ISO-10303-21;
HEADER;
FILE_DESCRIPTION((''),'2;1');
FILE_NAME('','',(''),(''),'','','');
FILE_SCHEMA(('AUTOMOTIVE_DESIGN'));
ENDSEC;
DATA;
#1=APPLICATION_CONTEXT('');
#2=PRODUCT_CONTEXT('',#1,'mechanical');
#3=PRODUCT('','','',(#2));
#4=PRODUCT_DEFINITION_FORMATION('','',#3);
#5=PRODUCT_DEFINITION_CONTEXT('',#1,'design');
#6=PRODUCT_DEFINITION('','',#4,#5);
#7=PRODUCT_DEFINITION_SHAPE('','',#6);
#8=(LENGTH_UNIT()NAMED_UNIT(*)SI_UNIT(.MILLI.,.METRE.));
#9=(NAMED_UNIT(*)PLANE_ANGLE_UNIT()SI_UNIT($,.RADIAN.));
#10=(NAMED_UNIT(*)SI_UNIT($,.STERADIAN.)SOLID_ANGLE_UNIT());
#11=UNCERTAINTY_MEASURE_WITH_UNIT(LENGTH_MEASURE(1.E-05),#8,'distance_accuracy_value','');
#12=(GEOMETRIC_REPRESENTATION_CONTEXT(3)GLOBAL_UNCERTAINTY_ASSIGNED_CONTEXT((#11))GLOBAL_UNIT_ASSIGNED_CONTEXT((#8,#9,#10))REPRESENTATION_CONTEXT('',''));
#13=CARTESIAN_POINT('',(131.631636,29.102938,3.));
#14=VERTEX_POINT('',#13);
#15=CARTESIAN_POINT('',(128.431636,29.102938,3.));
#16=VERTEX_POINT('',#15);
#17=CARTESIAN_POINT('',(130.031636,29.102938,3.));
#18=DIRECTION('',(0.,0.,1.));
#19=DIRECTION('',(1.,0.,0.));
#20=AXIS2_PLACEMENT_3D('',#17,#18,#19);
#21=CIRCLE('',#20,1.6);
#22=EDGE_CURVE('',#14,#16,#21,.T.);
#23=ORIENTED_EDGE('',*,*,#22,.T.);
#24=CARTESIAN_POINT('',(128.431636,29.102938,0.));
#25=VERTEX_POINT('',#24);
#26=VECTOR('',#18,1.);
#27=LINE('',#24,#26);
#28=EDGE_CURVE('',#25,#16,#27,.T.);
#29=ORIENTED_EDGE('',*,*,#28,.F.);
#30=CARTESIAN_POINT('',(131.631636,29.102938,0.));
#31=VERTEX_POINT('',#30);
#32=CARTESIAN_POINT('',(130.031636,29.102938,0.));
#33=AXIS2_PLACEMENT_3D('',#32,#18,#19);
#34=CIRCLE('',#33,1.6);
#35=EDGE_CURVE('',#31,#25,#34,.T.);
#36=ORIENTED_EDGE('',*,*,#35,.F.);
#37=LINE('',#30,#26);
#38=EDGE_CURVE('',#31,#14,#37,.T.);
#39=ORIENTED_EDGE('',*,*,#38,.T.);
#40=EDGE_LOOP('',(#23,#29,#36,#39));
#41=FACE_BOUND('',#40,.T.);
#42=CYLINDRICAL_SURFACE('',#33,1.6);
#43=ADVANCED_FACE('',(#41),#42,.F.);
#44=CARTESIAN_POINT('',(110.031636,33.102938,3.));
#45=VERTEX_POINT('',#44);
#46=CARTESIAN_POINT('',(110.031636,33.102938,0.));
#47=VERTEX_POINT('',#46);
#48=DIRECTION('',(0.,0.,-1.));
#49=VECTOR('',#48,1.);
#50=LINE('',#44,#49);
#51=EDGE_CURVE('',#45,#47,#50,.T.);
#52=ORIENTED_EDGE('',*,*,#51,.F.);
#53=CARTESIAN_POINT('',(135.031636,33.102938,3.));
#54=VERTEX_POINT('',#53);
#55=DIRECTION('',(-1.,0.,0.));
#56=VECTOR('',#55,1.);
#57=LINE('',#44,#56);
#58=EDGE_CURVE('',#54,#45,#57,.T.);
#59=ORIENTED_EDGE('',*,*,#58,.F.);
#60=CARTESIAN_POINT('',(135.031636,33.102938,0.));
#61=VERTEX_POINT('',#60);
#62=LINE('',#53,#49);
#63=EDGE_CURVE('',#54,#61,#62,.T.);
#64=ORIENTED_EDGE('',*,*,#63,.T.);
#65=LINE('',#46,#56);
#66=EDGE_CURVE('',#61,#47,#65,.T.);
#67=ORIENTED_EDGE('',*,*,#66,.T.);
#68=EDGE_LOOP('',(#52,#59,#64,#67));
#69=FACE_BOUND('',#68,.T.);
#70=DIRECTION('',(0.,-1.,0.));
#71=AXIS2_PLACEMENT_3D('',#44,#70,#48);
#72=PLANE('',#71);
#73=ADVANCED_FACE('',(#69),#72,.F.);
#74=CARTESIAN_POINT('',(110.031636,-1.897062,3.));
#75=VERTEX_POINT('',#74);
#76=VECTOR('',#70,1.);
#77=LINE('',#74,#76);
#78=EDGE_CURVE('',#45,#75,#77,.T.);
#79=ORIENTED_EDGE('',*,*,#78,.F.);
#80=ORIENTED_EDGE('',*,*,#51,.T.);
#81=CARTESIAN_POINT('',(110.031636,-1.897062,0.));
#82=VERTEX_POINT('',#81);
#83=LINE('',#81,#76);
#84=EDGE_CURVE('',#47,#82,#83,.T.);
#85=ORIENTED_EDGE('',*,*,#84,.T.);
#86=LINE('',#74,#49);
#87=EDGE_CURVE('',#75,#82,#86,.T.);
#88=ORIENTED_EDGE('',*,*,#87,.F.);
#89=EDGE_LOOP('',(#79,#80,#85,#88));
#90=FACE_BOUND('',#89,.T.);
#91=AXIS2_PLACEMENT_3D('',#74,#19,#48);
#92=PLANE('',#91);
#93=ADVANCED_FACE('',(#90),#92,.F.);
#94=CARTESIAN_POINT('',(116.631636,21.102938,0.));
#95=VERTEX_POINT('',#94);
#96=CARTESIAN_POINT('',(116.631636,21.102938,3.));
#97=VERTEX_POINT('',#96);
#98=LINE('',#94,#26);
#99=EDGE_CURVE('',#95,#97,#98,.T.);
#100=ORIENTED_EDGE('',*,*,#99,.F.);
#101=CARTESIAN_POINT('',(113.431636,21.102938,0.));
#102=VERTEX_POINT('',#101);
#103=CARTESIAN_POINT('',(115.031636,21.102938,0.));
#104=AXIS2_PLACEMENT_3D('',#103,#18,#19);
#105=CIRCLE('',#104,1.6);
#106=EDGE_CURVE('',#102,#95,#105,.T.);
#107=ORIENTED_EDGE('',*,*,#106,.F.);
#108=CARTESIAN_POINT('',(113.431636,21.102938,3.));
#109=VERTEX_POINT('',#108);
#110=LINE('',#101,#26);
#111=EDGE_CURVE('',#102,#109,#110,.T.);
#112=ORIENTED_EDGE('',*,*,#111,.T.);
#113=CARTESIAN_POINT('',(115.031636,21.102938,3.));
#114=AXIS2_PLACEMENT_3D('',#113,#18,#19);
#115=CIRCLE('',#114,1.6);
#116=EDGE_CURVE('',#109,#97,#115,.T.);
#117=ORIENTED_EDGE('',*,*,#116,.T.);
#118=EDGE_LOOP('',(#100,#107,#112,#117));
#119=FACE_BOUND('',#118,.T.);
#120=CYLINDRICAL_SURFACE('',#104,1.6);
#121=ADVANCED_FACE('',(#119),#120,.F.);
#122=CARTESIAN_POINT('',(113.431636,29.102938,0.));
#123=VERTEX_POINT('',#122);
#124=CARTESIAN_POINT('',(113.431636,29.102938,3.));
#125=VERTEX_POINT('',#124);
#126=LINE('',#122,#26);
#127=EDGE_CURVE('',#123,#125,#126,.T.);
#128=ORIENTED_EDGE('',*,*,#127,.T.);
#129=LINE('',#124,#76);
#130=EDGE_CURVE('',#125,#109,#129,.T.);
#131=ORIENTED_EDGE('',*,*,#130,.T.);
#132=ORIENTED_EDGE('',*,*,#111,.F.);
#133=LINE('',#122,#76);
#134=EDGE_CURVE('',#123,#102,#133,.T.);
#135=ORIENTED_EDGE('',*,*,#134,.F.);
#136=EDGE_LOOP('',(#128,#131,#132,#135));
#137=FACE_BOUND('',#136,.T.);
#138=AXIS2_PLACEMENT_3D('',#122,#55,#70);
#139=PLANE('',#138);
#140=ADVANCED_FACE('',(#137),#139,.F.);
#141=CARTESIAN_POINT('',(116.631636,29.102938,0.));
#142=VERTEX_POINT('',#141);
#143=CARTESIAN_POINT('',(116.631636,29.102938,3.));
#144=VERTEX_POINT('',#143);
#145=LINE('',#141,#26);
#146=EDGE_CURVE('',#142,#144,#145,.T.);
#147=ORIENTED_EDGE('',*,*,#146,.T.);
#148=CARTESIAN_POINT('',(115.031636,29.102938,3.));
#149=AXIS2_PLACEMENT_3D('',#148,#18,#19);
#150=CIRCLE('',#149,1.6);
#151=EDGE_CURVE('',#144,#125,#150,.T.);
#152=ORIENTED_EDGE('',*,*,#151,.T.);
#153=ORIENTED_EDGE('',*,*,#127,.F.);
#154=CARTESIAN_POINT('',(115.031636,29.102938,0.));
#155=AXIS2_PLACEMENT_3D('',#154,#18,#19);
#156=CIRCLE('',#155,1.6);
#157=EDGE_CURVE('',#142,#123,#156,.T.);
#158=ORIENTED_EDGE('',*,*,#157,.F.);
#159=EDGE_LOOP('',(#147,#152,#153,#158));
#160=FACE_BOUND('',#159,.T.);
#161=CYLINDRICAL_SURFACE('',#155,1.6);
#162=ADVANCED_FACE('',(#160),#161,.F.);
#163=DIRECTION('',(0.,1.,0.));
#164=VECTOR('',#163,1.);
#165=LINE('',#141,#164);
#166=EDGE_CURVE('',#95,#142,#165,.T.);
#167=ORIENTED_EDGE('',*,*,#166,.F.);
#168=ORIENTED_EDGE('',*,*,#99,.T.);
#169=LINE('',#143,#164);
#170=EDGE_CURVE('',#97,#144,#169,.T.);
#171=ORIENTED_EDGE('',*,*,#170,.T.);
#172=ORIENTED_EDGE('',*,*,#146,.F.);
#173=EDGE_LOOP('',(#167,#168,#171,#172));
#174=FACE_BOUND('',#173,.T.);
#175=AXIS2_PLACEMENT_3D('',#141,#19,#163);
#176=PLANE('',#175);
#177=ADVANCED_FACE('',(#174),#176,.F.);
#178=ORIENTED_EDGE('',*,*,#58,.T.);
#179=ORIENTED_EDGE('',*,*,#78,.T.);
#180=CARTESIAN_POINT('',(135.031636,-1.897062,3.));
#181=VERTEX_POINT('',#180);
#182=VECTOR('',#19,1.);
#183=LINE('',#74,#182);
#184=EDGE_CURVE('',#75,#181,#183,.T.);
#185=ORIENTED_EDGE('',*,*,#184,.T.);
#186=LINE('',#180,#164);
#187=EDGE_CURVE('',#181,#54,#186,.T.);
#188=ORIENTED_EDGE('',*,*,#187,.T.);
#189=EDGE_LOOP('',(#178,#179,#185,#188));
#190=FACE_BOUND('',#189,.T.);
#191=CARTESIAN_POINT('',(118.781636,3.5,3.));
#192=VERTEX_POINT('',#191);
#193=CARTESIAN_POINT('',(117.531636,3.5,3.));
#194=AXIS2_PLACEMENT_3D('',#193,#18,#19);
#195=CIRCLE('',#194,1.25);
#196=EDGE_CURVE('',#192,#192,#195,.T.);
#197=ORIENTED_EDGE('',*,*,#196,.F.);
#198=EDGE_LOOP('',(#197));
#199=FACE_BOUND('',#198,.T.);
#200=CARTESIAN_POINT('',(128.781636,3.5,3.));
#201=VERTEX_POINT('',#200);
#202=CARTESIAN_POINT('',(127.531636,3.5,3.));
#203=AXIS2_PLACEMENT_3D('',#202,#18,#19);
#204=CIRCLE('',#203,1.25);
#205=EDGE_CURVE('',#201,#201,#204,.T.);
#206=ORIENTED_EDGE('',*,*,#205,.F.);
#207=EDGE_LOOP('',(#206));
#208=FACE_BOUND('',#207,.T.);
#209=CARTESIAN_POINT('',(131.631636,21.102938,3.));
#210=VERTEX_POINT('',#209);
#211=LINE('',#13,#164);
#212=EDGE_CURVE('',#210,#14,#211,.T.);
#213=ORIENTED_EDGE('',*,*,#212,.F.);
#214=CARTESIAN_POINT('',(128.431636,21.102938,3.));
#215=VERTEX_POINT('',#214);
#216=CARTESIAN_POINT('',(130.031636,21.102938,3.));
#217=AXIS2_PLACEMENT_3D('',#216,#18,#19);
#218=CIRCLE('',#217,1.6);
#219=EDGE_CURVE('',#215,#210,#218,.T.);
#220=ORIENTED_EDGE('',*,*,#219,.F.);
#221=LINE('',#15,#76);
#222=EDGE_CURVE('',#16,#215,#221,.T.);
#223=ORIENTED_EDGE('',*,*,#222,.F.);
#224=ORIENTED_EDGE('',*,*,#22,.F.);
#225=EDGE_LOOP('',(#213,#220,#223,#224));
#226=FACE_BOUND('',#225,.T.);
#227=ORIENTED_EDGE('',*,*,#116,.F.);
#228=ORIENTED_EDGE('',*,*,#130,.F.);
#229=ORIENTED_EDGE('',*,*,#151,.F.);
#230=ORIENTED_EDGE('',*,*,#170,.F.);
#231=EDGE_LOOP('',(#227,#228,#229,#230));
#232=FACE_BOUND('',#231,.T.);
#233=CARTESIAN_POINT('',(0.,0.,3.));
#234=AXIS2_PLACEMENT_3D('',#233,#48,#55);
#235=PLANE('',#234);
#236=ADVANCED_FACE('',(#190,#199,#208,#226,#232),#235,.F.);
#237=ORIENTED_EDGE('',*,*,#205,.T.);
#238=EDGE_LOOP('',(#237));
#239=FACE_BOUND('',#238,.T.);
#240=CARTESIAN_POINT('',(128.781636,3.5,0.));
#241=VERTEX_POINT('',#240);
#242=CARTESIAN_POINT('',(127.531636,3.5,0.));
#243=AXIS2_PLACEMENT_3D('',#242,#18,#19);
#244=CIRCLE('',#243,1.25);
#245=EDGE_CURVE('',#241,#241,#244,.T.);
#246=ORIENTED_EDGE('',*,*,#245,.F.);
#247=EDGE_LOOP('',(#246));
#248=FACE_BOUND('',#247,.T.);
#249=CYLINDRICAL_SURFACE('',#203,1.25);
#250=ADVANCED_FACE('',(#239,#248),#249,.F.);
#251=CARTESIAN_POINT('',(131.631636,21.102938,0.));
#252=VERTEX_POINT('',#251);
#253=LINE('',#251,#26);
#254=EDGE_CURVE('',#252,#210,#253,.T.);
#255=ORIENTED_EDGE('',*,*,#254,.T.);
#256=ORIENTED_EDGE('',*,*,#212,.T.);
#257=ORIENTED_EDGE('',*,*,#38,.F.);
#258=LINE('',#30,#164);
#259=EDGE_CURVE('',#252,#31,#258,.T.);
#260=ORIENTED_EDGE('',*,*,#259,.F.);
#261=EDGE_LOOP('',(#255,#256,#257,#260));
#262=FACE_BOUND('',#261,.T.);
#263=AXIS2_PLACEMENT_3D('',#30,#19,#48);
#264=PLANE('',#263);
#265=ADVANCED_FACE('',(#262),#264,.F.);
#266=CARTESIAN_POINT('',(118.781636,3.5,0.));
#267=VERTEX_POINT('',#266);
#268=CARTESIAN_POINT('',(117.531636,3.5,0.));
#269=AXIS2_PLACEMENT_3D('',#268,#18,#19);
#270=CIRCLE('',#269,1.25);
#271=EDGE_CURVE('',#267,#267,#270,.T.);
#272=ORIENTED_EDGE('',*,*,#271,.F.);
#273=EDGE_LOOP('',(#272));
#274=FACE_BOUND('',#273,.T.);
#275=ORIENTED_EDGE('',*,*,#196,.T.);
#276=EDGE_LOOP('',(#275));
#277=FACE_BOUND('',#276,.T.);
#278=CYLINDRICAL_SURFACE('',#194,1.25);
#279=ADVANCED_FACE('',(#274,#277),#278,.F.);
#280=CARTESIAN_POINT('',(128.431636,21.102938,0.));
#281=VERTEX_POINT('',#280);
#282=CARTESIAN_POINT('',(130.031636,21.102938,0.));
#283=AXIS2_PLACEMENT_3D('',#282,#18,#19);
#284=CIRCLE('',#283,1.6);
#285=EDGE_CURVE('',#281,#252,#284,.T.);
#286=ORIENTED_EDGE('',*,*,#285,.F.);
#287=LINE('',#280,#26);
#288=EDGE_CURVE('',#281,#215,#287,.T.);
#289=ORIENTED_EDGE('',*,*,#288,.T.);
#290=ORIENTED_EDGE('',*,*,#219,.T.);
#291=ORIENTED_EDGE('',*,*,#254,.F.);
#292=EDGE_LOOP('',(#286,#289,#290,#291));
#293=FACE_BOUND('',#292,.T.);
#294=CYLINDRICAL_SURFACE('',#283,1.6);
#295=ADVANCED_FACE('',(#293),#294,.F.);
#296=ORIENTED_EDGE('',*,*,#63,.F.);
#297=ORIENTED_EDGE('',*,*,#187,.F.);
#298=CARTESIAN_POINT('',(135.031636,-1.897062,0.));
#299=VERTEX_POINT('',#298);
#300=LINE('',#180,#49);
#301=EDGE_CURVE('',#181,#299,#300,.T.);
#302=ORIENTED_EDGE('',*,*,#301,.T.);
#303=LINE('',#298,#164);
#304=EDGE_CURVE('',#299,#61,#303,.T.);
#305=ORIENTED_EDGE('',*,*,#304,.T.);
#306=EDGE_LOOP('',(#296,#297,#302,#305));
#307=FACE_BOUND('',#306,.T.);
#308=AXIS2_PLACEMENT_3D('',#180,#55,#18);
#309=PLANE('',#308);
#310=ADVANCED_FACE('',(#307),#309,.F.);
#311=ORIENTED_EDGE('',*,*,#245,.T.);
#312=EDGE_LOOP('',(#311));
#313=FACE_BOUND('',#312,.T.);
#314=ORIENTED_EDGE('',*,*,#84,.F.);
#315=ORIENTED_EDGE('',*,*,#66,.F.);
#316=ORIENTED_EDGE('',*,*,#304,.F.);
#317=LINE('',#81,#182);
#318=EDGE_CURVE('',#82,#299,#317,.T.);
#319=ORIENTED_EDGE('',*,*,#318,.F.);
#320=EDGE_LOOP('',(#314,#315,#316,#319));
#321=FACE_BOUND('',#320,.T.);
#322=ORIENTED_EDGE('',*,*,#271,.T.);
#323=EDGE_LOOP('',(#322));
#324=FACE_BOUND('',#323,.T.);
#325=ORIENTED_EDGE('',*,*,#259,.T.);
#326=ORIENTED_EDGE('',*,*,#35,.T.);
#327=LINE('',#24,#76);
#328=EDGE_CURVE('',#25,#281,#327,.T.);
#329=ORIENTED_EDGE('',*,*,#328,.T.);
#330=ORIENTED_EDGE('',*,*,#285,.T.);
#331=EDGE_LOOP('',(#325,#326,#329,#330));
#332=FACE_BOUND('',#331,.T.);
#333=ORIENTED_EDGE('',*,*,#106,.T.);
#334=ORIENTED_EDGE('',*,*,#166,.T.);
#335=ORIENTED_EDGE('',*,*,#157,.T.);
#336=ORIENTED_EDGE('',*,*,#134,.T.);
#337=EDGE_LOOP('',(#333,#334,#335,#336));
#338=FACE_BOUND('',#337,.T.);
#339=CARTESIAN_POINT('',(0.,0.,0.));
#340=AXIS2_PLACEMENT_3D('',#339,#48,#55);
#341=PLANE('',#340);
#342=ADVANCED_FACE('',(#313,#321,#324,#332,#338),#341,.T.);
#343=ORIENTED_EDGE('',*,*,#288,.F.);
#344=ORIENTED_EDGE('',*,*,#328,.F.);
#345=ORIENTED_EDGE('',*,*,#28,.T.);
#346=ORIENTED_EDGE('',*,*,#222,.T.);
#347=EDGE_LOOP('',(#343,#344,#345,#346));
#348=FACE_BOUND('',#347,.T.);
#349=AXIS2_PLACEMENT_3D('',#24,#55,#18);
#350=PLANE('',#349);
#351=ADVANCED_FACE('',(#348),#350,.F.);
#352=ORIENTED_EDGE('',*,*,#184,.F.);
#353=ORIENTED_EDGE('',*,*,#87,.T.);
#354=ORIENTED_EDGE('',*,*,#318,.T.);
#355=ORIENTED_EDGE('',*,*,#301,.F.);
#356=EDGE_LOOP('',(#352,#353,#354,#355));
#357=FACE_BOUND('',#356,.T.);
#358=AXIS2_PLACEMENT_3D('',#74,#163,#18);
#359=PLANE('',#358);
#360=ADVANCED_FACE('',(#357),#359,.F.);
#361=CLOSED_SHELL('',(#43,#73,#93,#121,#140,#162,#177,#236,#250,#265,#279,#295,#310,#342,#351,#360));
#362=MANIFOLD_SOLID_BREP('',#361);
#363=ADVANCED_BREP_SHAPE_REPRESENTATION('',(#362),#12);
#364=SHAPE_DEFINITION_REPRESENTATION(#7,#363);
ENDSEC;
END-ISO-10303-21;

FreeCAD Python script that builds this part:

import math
import FreeCAD as App
import Part
import Sketcher

V = App.Vector

doc = App.newDocument("Part")
body = doc.addObject("PartDesign::Body", "Body")

# Sketch on XY plane
sketch1 = body.newObject("Sketcher::SketchObject", "Sketch")
sketch1.AttachmentSupport = (doc.getObject("XY_Plane"), [""])
sketch1.MapMode = "FlatFace"
sketch1.addGeometry(Part.LineSegment(V(110, 33, 0), V(110, -2, 0)), False)
sketch1.addGeometry(Part.LineSegment(V(110, -2, 0), V(135, -2, 0)), False)
sketch1.addGeometry(Part.LineSegment(V(135, -2, 0), V(135, 33, 0)), False)
sketch1.addGeometry(Part.LineSegment(V(135, 33, 0), V(110, 33, 0)), False)
sketch1.addConstraint(Sketcher.Constraint("Coincident", 0, 2, 1, 1))
sketch1.addConstraint(Sketcher.Constraint("Coincident", 1, 2, 2, 1))
sketch1.addConstraint(Sketcher.Constraint("Coincident", 2, 2, 3, 1))
sketch1.addConstraint(Sketcher.Constraint("Coincident", 3, 2, 0, 1))
sketch1.addConstraint(Sketcher.Constraint("Vertical", 0))
sketch1.addConstraint(Sketcher.Constraint("Horizontal", 1))
sketch1.addConstraint(Sketcher.Constraint("Vertical", 2))
sketch1.addConstraint(Sketcher.Constraint("Horizontal", 3))
sketch1.addConstraint(Sketcher.Constraint("DistanceX", 1, 1, 1, 2, 25.0))
sketch1.addConstraint(Sketcher.Constraint("DistanceY", 0, 2, 0, 1, 35.0))
sketch1.addConstraint(Sketcher.Constraint("DistanceY", 0, 2, -1, 1, 1.897062))
sketch1.addConstraint(Sketcher.Constraint("DistanceX", -1, 1, 0, 2, 110.031636))
pad1 = body.newObject("PartDesign::Pad", "Pad")
pad1.Profile = sketch1
pad1.Length = 3

# Sketch on XY plane
sketch2 = body.newObject("Sketcher::SketchObject", "Sketch001")
sketch2.AttachmentSupport = (doc.getObject("XY_Plane"), [""])
sketch2.MapMode = "FlatFace"
sketch2.AttachmentOffset = App.Placement(V(0, 0, 3), App.Rotation())
sketch2.addGeometry(Part.Circle(V(117.5, 3.5, 0), V(0, 0, 1), 1.2), False)
sketch2.addGeometry(Part.Circle(V(127.5, 3.5, 0), V(0, 0, 1), 1.2), False)
sketch2.addConstraint(Sketcher.Constraint("Equal", 0, 1))
sketch2.addConstraint(Sketcher.Constraint("Horizontal", 0, 3, 1, 3))
sketch2.addConstraint(Sketcher.Constraint("Diameter", 0, 2.5))
sketch2.addConstraint(Sketcher.Constraint("DistanceX", 0, 3, 1, 3, 10.0))
sketch2.addConstraint(Sketcher.Constraint("DistanceY", -1, 1, 0, 3, 3.5))
sketch2.addConstraint(Sketcher.Constraint("DistanceX", -1, 1, 0, 3, 117.531636))
doc.recompute()
hole = body.newObject("PartDesign::Hole", "Hole")
hole.Profile = sketch2
hole.ThreadType = "None"
hole.Diameter = 2.5
hole.DepthType = "ThroughAll"

# Sketch on XY plane
sketch3 = body.newObject("Sketcher::SketchObject", "Sketch002")
sketch3.AttachmentSupport = (doc.getObject("XY_Plane"), [""])
sketch3.MapMode = "FlatFace"
sketch3.AttachmentOffset = App.Placement(V(0, 0, 3), App.Rotation())
sketch3.addGeometry(Part.LineSegment(V(116.6, 21.1, 0), V(116.6, 29.1, 0)), False)
sketch3.addGeometry(Part.ArcOfCircle(Part.Circle(V(115, 29.1, 0), V(0, 0, 1), 1.6), math.radians(0), math.radians(180)), False)
sketch3.addGeometry(Part.LineSegment(V(113.4, 29.1, 0), V(113.4, 21.1, 0)), False)
sketch3.addGeometry(Part.ArcOfCircle(Part.Circle(V(115, 21.1, 0), V(0, 0, 1), 1.6), math.radians(180), math.radians(360)), False)
sketch3.addGeometry(Part.LineSegment(V(131.6, 21.1, 0), V(131.6, 29.1, 0)), False)
sketch3.addGeometry(Part.ArcOfCircle(Part.Circle(V(130, 29.1, 0), V(0, 0, 1), 1.6), math.radians(0), math.radians(180)), False)
sketch3.addGeometry(Part.LineSegment(V(128.4, 29.1, 0), V(128.4, 21.1, 0)), False)
sketch3.addGeometry(Part.ArcOfCircle(Part.Circle(V(130, 21.1, 0), V(0, 0, 1), 1.6), math.radians(180), math.radians(360)), False)
sketch3.addConstraint(Sketcher.Constraint("Tangent", 0, 2, 1, 1))
sketch3.addConstraint(Sketcher.Constraint("Tangent", 1, 2, 2, 1))
sketch3.addConstraint(Sketcher.Constraint("Tangent", 2, 2, 3, 1))
sketch3.addConstraint(Sketcher.Constraint("Tangent", 3, 2, 0, 1))
sketch3.addConstraint(Sketcher.Constraint("Tangent", 4, 2, 5, 1))
sketch3.addConstraint(Sketcher.Constraint("Tangent", 5, 2, 6, 1))
sketch3.addConstraint(Sketcher.Constraint("Tangent", 6, 2, 7, 1))
sketch3.addConstraint(Sketcher.Constraint("Tangent", 7, 2, 4, 1))
sketch3.addConstraint(Sketcher.Constraint("Vertical", 0))
sketch3.addConstraint(Sketcher.Constraint("Vertical", 2))
sketch3.addConstraint(Sketcher.Constraint("Vertical", 4))
sketch3.addConstraint(Sketcher.Constraint("Vertical", 6))
sketch3.addConstraint(Sketcher.Constraint("Equal", 3, 5))
sketch3.addConstraint(Sketcher.Constraint("Horizontal", 1, 3, 5, 3))
sketch3.addConstraint(Sketcher.Constraint("Horizontal", 3, 3, 7, 3))
sketch3.addConstraint(Sketcher.Constraint("Radius", 1, 1.6))
sketch3.addConstraint(Sketcher.Constraint("DistanceY", 0, 1, 0, 2, 8.0))
sketch3.addConstraint(Sketcher.Constraint("DistanceX", 1, 3, 5, 3, 15.0))
sketch3.addConstraint(Sketcher.Constraint("DistanceY", -1, 1, 1, 3, 29.102938))
sketch3.addConstraint(Sketcher.Constraint("DistanceX", -1, 1, 1, 3, 115.031636))
pocket1 = body.newObject("PartDesign::Pocket", "Pocket")
pocket1.Profile = sketch3
pocket1.Type = "ThroughAll"

doc.recompute()
